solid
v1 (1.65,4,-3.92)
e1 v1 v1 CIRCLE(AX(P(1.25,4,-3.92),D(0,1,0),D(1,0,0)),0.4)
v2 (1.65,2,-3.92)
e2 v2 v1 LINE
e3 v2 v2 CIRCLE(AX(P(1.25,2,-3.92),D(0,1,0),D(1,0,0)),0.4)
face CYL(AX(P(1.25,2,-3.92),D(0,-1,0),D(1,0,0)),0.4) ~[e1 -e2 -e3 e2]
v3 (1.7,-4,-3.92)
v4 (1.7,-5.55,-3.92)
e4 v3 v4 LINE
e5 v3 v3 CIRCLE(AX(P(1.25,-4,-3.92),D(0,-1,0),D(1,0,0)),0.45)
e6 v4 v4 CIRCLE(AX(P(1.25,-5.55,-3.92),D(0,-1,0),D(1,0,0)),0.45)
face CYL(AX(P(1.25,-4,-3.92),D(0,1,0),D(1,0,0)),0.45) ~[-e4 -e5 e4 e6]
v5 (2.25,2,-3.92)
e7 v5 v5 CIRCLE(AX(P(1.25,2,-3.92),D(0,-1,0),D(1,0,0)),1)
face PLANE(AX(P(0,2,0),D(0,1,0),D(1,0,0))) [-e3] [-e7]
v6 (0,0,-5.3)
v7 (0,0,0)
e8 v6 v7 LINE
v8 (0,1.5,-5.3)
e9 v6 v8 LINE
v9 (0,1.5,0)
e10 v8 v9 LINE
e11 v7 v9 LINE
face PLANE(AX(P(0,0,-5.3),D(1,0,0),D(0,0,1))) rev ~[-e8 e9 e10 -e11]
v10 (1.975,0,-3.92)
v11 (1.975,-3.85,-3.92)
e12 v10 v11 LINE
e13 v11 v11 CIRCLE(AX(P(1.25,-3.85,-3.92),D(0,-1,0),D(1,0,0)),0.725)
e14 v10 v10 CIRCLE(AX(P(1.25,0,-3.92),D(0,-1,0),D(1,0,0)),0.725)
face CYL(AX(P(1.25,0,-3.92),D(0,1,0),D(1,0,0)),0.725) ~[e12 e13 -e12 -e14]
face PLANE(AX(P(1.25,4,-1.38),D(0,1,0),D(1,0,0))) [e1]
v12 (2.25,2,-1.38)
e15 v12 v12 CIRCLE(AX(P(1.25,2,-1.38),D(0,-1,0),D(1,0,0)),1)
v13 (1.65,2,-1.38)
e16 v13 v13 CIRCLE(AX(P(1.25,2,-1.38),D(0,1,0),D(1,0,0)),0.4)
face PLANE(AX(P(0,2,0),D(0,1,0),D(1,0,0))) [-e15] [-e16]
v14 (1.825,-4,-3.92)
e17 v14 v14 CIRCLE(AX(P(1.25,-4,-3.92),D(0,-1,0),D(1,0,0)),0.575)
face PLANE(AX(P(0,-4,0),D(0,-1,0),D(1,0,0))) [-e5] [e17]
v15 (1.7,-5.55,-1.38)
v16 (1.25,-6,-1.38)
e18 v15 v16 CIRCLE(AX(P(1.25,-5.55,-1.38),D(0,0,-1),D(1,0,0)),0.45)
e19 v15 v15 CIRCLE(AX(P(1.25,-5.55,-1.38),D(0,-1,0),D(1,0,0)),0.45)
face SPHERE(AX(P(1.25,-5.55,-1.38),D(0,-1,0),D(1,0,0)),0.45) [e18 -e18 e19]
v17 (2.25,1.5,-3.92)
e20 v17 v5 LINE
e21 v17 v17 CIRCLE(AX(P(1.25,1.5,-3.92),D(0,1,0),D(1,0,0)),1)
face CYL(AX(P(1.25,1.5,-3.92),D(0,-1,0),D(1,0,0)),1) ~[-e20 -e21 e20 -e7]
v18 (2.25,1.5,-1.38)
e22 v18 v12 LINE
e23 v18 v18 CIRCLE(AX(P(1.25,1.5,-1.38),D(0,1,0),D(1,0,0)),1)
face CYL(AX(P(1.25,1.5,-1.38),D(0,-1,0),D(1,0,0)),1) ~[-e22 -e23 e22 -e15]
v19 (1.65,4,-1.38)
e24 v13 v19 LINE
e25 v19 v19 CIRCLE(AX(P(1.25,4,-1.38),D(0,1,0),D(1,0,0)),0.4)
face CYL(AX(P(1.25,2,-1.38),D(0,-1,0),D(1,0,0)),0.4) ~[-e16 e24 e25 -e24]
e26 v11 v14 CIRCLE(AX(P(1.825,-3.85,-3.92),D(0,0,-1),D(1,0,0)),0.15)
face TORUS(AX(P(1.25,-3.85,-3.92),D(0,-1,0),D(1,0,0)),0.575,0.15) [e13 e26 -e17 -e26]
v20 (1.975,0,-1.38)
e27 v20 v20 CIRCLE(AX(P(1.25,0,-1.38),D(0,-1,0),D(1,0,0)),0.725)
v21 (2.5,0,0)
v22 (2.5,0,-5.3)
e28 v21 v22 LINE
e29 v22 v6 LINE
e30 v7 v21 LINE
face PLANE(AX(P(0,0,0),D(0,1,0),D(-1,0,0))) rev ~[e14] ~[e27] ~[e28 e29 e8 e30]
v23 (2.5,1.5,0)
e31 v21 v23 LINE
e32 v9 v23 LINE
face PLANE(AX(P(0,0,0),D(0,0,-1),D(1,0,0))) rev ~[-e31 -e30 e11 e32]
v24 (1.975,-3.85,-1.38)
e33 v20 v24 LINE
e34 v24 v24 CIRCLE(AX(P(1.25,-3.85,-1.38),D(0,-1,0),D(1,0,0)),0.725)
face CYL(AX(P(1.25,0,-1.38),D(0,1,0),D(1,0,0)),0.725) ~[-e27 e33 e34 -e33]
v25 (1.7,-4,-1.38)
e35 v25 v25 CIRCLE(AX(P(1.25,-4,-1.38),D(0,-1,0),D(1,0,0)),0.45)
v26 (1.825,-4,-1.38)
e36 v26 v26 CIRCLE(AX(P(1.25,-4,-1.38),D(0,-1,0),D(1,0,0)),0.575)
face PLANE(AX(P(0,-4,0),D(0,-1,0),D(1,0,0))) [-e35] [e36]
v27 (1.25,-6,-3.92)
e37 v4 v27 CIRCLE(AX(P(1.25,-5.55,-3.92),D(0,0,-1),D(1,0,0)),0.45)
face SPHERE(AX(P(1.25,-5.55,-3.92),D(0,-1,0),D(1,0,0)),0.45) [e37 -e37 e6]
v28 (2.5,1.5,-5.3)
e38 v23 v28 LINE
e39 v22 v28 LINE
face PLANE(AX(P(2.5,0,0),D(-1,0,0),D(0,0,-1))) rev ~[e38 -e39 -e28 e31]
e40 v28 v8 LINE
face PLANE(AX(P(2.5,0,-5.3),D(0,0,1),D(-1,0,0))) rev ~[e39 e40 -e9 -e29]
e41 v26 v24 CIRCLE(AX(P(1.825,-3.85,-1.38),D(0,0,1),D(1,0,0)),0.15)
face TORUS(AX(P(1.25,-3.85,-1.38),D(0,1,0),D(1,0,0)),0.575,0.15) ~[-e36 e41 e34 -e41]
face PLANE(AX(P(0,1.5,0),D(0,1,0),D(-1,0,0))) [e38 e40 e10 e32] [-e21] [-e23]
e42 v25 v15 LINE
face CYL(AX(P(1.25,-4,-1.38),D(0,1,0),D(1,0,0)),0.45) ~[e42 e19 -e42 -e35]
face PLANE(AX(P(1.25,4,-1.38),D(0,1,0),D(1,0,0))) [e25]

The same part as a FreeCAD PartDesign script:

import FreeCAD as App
import Part
import Sketcher


def edges_at(feature, points):
    """Names of the edges that pass closest to the given points."""
    edges = feature.Shape.Edges
    near = lambda p: min(range(len(edges)), key=lambda i: edges[i].distToShape(Part.Vertex(*p))[0])
    return sorted({f"Edge{near(p) + 1}" for p in points})

doc = App.newDocument("Part")
body = doc.addObject("PartDesign::Body", "Body")

sketch1 = body.newObject("Sketcher::SketchObject", "Sketch")
sketch1.AttachmentSupport = (doc.getObject("XZ_Plane"), [""])
sketch1.MapMode = "FlatFace"
sketch1.addGeometry(Part.LineSegment(App.Vector(0, -5.3, 0), App.Vector(0, 0, 0)), False)
sketch1.addGeometry(Part.LineSegment(App.Vector(0, 0, 0), App.Vector(2.5, 0, 0)), False)
sketch1.addGeometry(Part.LineSegment(App.Vector(2.5, 0, 0), App.Vector(2.5, -5.3, 0)), False)
sketch1.addGeometry(Part.LineSegment(App.Vector(2.5, -5.3, 0), App.Vector(0, -5.3, 0)), False)
sketch1.addConstraint(Sketcher.Constraint("Coincident", 0, 2, 1, 1))
sketch1.addConstraint(Sketcher.Constraint("Coincident", 1, 2, 2, 1))
sketch1.addConstraint(Sketcher.Constraint("Coincident", 2, 2, 3, 1))
sketch1.addConstraint(Sketcher.Constraint("Coincident", 3, 2, 0, 1))
sketch1.addConstraint(Sketcher.Constraint("Vertical", 0))
sketch1.addConstraint(Sketcher.Constraint("Horizontal", 1))
sketch1.addConstraint(Sketcher.Constraint("Vertical", 2))
sketch1.addConstraint(Sketcher.Constraint("Horizontal", 3))
sketch1.addConstraint(Sketcher.Constraint("Coincident", 0, 2, -1, 1))
sketch1.addConstraint(Sketcher.Constraint("DistanceX", 1, 1, 1, 2, 2.5))
sketch1.addConstraint(Sketcher.Constraint("DistanceY", 0, 1, 0, 2, 5.3))
pad1 = body.newObject("PartDesign::Pad", "Pad")
pad1.Profile = sketch1
pad1.Length = 1.5
pad1.Reversed = True

sketch2 = body.newObject("Sketcher::SketchObject", "Sketch001")
sketch2.AttachmentSupport = (doc.getObject("XZ_Plane"), [""])
sketch2.MapMode = "FlatFace"
sketch2.AttachmentOffset = App.Placement(App.Vector(0, 0, -1.5), App.Rotation())
sketch2.addGeometry(Part.Circle(App.Vector(1.2, -3.9, 0), App.Vector(0, 0, 1), 1), False)
sketch2.addGeometry(Part.Circle(App.Vector(1.2, -1.4, 0), App.Vector(0, 0, 1), 1), False)
sketch2.addConstraint(Sketcher.Constraint("Equal", 0, 1))
sketch2.addConstraint(Sketcher.Constraint("Vertical", 0, 3, 1, 3))
sketch2.addConstraint(Sketcher.Constraint("Diameter", 0, 2.0))
sketch2.addConstraint(Sketcher.Constraint("DistanceY", 0, 3, 1, 3, 2.54))
sketch2.addConstraint(Sketcher.Constraint("DistanceX", -1, 1, 0, 3, 1.25))
sketch2.addConstraint(Sketcher.Constraint("DistanceY", 0, 3, -1, 1, 3.92))
pad2 = body.newObject("PartDesign::Pad", "Pad001")
pad2.Profile = sketch2
pad2.Length = 0.5
pad2.Reversed = True

sketch3 = body.newObject("Sketcher::SketchObject", "Sketch002")
sketch3.AttachmentSupport = (doc.getObject("XZ_Plane"), [""])
sketch3.MapMode = "FlatFace"
sketch3.AttachmentOffset = App.Placement(App.Vector(0, 0, -2), App.Rotation())
sketch3.addGeometry(Part.Circle(App.Vector(1.25, -1.38, 0), App.Vector(0, 0, 1), 0.4), False)
sketch3.addGeometry(Part.Circle(App.Vector(1.25, -3.92, 0), App.Vector(0, 0, 1), 0.4), False)
sketch3.addConstraint(Sketcher.Constraint("Equal", 0, 1))
sketch3.addConstraint(Sketcher.Constraint("Vertical", 0, 3, 1, 3))
sketch3.addConstraint(Sketcher.Constraint("Diameter", 0, 0.8))
sketch3.addConstraint(Sketcher.Constraint("DistanceX", -1, 1, 0, 3, 1.25))
sketch3.addConstraint(Sketcher.Constraint("DistanceY", 0, 3, -1, 1, 1.38))
sketch3.addConstraint(Sketcher.Constraint("DistanceY", 1, 3, -1, 1, 3.92))
pad3 = body.newObject("PartDesign::Pad", "Pad002")
pad3.Profile = sketch3
pad3.Length = 2
pad3.Reversed = True

sketch4 = body.newObject("Sketcher::SketchObject", "Sketch003")
sketch4.AttachmentSupport = (doc.getObject("XZ_Plane"), [""])
sketch4.MapMode = "FlatFace"
sketch4.addGeometry(Part.Circle(App.Vector(1.2, -3.9, 0), App.Vector(0, 0, 1), 0.7), False)
sketch4.addGeometry(Part.Circle(App.Vector(1.2, -1.4, 0), App.Vector(0, 0, 1), 0.7), False)
sketch4.addConstraint(Sketcher.Constraint("Equal", 0, 1))
sketch4.addConstraint(Sketcher.Constraint("Vertical", 0, 3, 1, 3))
sketch4.addConstraint(Sketcher.Constraint("Diameter", 0, 1.45))
sketch4.addConstraint(Sketcher.Constraint("DistanceX", -1, 1, 0, 3, 1.25))
sketch4.addConstraint(Sketcher.Constraint("DistanceY", 0, 3, -1, 1, 3.92))
sketch4.addConstraint(Sketcher.Constraint("DistanceY", 1, 3, -1, 1, 1.38))
pad4 = body.newObject("PartDesign::Pad", "Pad003")
pad4.Profile = sketch4
pad4.Length = 4

sketch5 = body.newObject("Sketcher::SketchObject", "Sketch004")
sketch5.AttachmentSupport = (doc.getObject("XZ_Plane"), [""])
sketch5.MapMode = "FlatFace"
sketch5.AttachmentOffset = App.Placement(App.Vector(0, 0, 4), App.Rotation())
sketch5.addGeometry(Part.Circle(App.Vector(1.25, -1.38, 0), App.Vector(0, 0, 1), 0.45), False)
sketch5.addGeometry(Part.Circle(App.Vector(1.25, -3.92, 0), App.Vector(0, 0, 1), 0.45), False)
sketch5.addConstraint(Sketcher.Constraint("Equal", 0, 1))
sketch5.addConstraint(Sketcher.Constraint("Vertical", 0, 3, 1, 3))
sketch5.addConstraint(Sketcher.Constraint("Diameter", 0, 0.9))
sketch5.addConstraint(Sketcher.Constraint("DistanceX", -1, 1, 0, 3, 1.25))
sketch5.addConstraint(Sketcher.Constraint("DistanceY", 0, 3, -1, 1, 1.38))
sketch5.addConstraint(Sketcher.Constraint("DistanceY", 1, 3, -1, 1, 3.92))
pad5 = body.newObject("PartDesign::Pad", "Pad004")
pad5.Profile = sketch5
pad5.Length = 2
doc.recompute()

fillet = body.newObject("PartDesign::Fillet", "Fillet")
fillet.Base = (pad5, edges_at(pad5, [(0.8, -6, -3.92)]))
fillet.Radius = 0.45
doc.recompute()

fillet2 = body.newObject("PartDesign::Fillet", "Fillet001")
fillet2.Base = (fillet, edges_at(fillet, [(0.8, -6, -1.38)]))
fillet2.Radius = 0.45
doc.recompute()

fillet3 = body.newObject("PartDesign::Fillet", "Fillet002")
fillet3.Base = (fillet2, edges_at(fillet2, [(0.525, -4, -3.92), (0.525, -4, -1.38)]))
fillet3.Radius = 0.15

doc.recompute()
